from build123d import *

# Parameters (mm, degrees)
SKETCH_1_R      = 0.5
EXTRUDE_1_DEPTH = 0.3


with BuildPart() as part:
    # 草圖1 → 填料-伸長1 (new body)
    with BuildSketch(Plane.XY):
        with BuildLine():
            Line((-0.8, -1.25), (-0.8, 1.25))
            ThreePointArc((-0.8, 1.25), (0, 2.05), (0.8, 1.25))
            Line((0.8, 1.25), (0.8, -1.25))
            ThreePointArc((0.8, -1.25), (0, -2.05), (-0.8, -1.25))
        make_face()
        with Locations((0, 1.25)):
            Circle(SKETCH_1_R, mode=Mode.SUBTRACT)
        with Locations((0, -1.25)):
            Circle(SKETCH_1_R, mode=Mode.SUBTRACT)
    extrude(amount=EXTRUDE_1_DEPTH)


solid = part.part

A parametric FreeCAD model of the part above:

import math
import FreeCAD as App
import Part
import Sketcher

V = App.Vector
Q = App.Units.Quantity

doc = App.newDocument("Part")
body = doc.addObject("PartDesign::Body", "Body")

# Sketch on XY plane
sketch1 = doc.addObject("Sketcher::SketchObject", "Sketch")
body.addObject(sketch1)
sketch1.AttachmentSupport = (doc.XY_Plane, [""])
sketch1.MapMode = "FlatFace"
sketch1.addGeometry([
    Part.LineSegment(V(-0.8, 1.25, 0), V(-0.8, -1.25, 0)),  # 0
    Part.ArcOfCircle(Part.Circle(V(0, -1.25, 0), V(0, 0, 1), 0.8), math.radians(180), math.radians(360)),  # 1
    Part.LineSegment(V(0.8, -1.25, 0), V(0.8, 1.25, 0)),  # 2
    Part.ArcOfCircle(Part.Circle(V(0, 1.25, 0), V(0, 0, 1), 0.8), math.radians(0), math.radians(180)),  # 3
    Part.Circle(V(0, -1.25, 0), V(0, 0, 1), 0.5),  # 4
    Part.Circle(V(0, 1.25, 0), V(0, 0, 1), 0.5),  # 5
], False)
sketch1.addConstraint([
    Sketcher.Constraint("Tangent", 0, 2, 1, 1),
    Sketcher.Constraint("Tangent", 1, 2, 2, 1),
    Sketcher.Constraint("Tangent", 2, 2, 3, 1),
    Sketcher.Constraint("Tangent", 3, 2, 0, 1),
    Sketcher.Constraint("Vertical", 0),
    Sketcher.Constraint("Vertical", 2),
    Sketcher.Constraint("Coincident", 4, 3, 1, 3),
    Sketcher.Constraint("Coincident", 5, 3, 3, 3),
    Sketcher.Constraint("Equal", 4, 5),
    Sketcher.Constraint("Symmetric", 1, 3, 3, 3, -1, 1),
    Sketcher.Constraint("Diameter", 4, Q("1 mm")),
    Sketcher.Constraint("Radius", 1, Q("0.8 mm")),
    Sketcher.Constraint("DistanceY", 0, 2, 0, 1, Q("2.5 mm")),
])
pad1 = doc.addObject("PartDesign::Pad", "Pad")
body.addObject(pad1)
pad1.Profile = sketch1
pad1.Length = 0.3

doc.recompute()
